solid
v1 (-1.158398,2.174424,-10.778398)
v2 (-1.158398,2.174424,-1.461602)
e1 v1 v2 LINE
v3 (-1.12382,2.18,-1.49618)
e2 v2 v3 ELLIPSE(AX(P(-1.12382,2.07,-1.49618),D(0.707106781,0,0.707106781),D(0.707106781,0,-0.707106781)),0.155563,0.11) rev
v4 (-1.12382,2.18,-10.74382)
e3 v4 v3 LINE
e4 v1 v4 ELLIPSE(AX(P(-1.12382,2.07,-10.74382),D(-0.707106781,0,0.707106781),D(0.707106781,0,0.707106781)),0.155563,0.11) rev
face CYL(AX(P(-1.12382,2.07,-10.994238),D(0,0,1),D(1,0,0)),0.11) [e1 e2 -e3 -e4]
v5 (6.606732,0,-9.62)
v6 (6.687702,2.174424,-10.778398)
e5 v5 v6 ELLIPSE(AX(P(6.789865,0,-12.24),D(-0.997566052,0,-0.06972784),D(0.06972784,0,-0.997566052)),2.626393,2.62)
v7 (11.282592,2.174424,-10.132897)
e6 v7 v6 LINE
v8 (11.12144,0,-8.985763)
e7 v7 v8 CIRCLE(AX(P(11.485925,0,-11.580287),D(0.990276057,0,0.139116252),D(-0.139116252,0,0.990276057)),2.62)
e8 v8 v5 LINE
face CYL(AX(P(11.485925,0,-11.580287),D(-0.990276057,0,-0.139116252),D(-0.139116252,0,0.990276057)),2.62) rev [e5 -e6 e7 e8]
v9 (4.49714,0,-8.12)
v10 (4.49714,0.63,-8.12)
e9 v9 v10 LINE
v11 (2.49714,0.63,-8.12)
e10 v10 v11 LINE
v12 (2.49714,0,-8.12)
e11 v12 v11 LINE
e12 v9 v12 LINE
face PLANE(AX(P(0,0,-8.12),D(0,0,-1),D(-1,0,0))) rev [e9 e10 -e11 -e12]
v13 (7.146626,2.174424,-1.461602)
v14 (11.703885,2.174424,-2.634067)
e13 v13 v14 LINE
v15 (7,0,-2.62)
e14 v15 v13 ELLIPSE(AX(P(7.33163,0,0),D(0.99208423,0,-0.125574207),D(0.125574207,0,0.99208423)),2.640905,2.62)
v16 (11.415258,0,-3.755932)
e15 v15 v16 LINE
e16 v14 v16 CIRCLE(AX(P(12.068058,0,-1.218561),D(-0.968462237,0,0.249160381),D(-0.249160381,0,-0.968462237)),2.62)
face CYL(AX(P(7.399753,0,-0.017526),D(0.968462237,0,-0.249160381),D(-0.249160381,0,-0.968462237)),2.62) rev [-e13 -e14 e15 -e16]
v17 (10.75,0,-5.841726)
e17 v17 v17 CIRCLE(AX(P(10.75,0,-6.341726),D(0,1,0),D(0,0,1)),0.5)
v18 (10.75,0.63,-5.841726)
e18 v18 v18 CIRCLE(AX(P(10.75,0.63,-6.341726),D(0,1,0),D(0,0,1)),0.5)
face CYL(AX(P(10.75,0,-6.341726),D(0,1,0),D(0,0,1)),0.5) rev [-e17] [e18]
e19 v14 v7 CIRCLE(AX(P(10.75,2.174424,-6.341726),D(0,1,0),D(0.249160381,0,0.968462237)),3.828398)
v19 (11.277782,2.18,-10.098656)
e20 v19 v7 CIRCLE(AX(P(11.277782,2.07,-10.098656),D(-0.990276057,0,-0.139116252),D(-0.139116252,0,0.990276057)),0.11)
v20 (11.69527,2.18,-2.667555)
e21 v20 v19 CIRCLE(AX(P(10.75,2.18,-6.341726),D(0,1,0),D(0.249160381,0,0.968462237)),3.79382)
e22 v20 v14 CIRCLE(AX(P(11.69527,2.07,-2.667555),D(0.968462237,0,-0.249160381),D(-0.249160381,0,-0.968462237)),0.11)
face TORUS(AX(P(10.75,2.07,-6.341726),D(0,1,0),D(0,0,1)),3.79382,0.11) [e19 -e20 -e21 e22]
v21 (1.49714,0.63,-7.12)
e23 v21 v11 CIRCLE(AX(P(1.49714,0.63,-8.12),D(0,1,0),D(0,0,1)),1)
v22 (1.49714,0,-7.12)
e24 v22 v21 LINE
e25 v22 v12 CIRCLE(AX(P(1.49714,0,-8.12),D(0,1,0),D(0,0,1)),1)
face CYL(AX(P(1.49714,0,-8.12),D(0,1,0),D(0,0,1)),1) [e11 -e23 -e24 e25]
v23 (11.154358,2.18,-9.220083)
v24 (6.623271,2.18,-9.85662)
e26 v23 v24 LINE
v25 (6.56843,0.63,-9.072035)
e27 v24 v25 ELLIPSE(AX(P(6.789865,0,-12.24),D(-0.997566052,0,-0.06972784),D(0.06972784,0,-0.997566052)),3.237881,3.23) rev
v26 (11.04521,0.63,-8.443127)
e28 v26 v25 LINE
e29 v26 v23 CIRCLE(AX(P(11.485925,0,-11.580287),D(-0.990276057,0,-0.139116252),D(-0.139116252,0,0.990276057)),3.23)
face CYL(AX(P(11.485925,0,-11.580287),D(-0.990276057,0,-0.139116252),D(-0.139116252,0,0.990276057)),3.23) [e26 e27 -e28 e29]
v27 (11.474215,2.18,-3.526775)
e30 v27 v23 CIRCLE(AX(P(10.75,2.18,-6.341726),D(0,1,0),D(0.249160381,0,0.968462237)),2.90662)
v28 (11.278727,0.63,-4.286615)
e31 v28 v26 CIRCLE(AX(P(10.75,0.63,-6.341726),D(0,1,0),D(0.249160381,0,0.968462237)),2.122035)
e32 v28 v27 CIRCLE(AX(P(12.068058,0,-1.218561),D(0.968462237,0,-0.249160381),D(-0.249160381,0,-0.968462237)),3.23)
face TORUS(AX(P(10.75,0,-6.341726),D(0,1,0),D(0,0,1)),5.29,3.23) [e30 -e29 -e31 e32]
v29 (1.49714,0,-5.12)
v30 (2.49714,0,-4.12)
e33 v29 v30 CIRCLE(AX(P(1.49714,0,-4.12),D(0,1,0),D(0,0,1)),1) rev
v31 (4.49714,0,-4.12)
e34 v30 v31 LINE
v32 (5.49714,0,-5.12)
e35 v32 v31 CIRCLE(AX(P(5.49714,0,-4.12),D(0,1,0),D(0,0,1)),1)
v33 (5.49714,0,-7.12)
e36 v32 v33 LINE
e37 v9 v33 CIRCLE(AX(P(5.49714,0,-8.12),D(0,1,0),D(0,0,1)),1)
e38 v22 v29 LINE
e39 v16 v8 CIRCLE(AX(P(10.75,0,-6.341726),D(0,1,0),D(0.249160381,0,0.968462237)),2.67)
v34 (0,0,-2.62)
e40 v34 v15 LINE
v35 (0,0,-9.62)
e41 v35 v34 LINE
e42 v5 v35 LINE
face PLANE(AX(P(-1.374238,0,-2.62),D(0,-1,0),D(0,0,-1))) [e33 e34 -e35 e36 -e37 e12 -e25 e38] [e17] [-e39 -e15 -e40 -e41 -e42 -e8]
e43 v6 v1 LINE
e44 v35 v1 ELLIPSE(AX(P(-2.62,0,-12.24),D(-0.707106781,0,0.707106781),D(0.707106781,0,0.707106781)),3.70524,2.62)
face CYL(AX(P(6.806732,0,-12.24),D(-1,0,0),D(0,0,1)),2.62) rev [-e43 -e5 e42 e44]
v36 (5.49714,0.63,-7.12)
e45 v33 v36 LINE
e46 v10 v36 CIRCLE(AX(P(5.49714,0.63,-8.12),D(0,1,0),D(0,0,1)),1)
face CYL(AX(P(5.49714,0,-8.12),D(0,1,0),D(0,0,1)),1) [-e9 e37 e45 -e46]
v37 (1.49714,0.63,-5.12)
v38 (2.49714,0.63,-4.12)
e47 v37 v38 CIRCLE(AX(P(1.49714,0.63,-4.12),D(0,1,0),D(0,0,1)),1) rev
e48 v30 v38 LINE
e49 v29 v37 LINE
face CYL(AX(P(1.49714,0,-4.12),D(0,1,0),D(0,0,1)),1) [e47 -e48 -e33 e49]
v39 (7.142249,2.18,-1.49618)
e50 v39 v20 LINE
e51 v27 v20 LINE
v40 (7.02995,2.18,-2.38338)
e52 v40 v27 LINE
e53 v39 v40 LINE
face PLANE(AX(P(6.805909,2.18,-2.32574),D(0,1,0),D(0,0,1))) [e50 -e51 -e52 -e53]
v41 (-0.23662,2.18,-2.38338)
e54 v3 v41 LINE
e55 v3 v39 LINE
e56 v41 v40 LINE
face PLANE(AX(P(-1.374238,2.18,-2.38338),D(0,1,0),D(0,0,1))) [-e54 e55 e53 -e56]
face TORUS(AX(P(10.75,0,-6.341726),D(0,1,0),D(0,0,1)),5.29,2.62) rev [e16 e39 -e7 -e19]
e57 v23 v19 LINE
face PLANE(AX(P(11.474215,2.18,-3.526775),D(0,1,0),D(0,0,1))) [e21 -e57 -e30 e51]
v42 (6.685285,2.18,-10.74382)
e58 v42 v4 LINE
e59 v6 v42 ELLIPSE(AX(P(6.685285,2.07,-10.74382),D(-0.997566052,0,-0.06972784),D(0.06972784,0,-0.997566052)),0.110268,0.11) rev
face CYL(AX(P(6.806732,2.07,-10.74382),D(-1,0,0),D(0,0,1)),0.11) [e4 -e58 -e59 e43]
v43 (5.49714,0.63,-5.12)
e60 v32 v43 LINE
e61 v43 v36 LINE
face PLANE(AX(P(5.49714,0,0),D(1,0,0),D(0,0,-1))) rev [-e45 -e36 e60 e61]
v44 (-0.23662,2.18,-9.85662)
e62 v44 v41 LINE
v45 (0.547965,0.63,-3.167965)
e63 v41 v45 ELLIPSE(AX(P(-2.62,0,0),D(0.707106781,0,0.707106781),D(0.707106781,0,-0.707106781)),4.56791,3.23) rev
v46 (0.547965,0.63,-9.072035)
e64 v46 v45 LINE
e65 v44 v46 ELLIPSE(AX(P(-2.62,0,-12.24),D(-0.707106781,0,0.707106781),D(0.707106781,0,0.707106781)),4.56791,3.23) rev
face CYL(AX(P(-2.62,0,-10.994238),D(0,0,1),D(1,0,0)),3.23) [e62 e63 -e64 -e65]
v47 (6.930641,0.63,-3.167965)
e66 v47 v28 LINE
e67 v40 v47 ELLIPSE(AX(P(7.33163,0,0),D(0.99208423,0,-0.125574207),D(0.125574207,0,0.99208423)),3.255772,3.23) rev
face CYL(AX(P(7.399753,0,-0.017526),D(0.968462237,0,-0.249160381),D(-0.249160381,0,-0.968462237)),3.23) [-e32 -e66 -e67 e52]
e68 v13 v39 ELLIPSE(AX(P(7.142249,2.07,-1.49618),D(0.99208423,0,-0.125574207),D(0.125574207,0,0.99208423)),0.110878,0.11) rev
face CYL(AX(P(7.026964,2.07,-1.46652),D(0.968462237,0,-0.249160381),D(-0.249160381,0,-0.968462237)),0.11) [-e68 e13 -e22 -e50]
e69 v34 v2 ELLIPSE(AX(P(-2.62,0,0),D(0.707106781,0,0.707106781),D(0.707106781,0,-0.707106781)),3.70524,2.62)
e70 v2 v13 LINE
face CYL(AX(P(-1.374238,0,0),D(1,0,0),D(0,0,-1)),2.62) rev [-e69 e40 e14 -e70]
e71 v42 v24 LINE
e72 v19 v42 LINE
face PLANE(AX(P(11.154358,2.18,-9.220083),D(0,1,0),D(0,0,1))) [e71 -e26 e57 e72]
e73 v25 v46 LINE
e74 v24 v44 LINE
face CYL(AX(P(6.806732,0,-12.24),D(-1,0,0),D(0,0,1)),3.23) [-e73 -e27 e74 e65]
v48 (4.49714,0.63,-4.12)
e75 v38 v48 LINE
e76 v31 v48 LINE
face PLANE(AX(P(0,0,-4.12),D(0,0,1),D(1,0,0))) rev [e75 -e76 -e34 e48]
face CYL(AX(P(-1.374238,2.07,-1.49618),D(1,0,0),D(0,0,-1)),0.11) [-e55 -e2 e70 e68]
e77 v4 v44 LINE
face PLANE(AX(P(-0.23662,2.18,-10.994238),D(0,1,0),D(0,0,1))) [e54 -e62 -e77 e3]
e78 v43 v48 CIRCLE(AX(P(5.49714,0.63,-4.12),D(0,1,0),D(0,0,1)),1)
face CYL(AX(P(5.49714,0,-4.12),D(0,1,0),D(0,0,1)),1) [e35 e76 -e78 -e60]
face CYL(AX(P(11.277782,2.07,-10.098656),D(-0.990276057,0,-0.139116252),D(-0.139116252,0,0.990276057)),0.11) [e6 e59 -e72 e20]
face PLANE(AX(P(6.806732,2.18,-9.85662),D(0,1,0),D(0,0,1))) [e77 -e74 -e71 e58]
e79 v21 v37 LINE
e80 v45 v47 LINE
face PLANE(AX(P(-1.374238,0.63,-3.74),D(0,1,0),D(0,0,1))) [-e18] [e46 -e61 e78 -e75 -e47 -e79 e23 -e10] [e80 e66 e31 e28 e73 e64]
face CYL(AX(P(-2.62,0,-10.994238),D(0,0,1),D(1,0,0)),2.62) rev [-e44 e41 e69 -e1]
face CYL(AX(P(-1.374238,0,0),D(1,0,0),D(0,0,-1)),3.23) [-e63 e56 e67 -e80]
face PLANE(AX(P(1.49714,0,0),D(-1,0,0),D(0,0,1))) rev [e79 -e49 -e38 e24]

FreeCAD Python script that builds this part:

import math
import FreeCAD as App
import Part
import Sketcher

V = App.Vector

doc = App.newDocument("Part")
body = doc.addObject("PartDesign::Body", "Body")

# Sketch on YZ plane
sketch1 = doc.addObject("Sketcher::SketchObject", "Sketch")
body.addObject(sketch1)
sketch1.AttachmentSupport = (doc.YZ_Plane, [""])
sketch1.MapMode = "FlatFace"
sketch1.addGeometry([
    Part.LineSegment(V(0, -2.62, 0), V(0, -3.74, 0)),  # 0
    Part.LineSegment(V(0, -3.74, 0), V(0.63, -3.74, 0)),  # 1
    Part.LineSegment(V(0.63, -3.74, 0), V(0.63, -3.168, 0)),  # 2
    Part.ArcOfCircle(Part.Circle(V(0, 0, 0), V(0, 0, 1), 3.23), math.radians(-79), math.radians(-48)),  # 3
    Part.LineSegment(V(2.18, -2.383, 0), V(2.18, -1.496, 0)),  # 4
    Part.ArcOfCircle(Part.Circle(V(2.07, -1.496, 0), V(0, 0, 1), 0.11), math.radians(0), math.radians(18.32)),  # 5
    Part.ArcOfCircle(Part.Circle(V(0, 0, 0), V(0, 0, 1), 2.62), math.radians(-90), math.radians(-34)),  # 6
], False)
sketch1.addConstraint([
    Sketcher.Constraint("Coincident", 0, 2, 1, 1),
    Sketcher.Constraint("Coincident", 1, 2, 2, 1),
    Sketcher.Constraint("Coincident", 2, 2, 3, 1),
    Sketcher.Constraint("Coincident", 3, 2, 4, 1),
    Sketcher.Constraint("Tangent", 4, 2, 5, 1),
    Sketcher.Constraint("Coincident", 5, 2, 6, 2),
    Sketcher.Constraint("Coincident", 6, 1, 0, 1),
    Sketcher.Constraint("Vertical", 0),
    Sketcher.Constraint("Horizontal", 1),
    Sketcher.Constraint("Vertical", 2),
    Sketcher.Constraint("Vertical", 4),
    Sketcher.Constraint("Coincident", 3, 3, -1, 1),
    Sketcher.Constraint("Coincident", 6, 3, -1, 1),
    Sketcher.Constraint("PointOnObject", 0, 2, -2),
    Sketcher.Constraint("Radius", 3, 3.23),
    Sketcher.Constraint("Radius", 5, 0.11),
    Sketcher.Constraint("Radius", 6, 2.62),
    Sketcher.Constraint("DistanceX", 1, 1, 1, 2, 0.63),
    Sketcher.Constraint("DistanceY", 0, 2, 0, 1, 1.12),
    Sketcher.Constraint("DistanceX", -1, 1, 5, 3, 2.07),
    Sketcher.Constraint("DistanceY", 4, 1, 4, 2, 0.8872),
])

# Sketch on XZ plane
sketch2 = doc.addObject("Sketcher::SketchObject", "Sketch001")
body.addObject(sketch2)
sketch2.AttachmentSupport = (doc.XZ_Plane, [""])
sketch2.MapMode = "FlatFace"
sketch2.addGeometry([
    Part.LineSegment(V(0, -2.6, 0), V(7, -2.6, 0)),  # 0
    Part.LineSegment(V(7, -2.6, 0), V(11.4, -3.8, 0)),  # 1
    Part.ArcOfCircle(Part.Circle(V(10.7, -6.3, 0), V(0, 0, 1), 2.7), math.radians(-82), math.radians(76)),  # 2
    Part.LineSegment(V(11.1, -9, 0), V(6.6, -9.6, 0)),  # 3
    Part.LineSegment(V(6.6, -9.6, 0), V(0, -9.6, 0)),  # 4
    Part.LineSegment(V(0, -9.6, 0), V(0, -2.6, 0)),  # 5
], False)
sketch2.addConstraint([
    Sketcher.Constraint("Coincident", 0, 2, 1, 1),
    Sketcher.Constraint("Tangent", 1, 2, 2, 2),
    Sketcher.Constraint("Tangent", 2, 1, 3, 1),
    Sketcher.Constraint("Coincident", 3, 2, 4, 1),
    Sketcher.Constraint("Coincident", 4, 2, 5, 1),
    Sketcher.Constraint("Coincident", 5, 2, 0, 1),
    Sketcher.Constraint("Horizontal", 0),
    Sketcher.Constraint("Horizontal", 4),
    Sketcher.Constraint("Vertical", 5),
    Sketcher.Constraint("PointOnObject", 4, 2, -2),
    Sketcher.Constraint("Equal", 0, 5),
    Sketcher.Constraint("Equal", 1, 3),
    Sketcher.Constraint("DistanceX", 0, 1, 0, 2, 7.0),
    Sketcher.Constraint("Radius", 2, 2.67),
    Sketcher.Constraint("DistanceX", -1, 1, 2, 3, 10.75),
    Sketcher.Constraint("DistanceY", 0, 2, -1, 1, 2.62),
    Sketcher.Constraint("Distance", 1, 4.55904),
])
doc.recompute()

additivepipe = doc.addObject("PartDesign::AdditivePipe", "AdditivePipe")
body.addObject(additivepipe)
additivepipe.Profile = sketch1
additivepipe.Spine = (sketch2, ["Edge1", "Edge2", "Edge3", "Edge4", "Edge5", "Edge6"])
additivepipe.Transition = "Right corner"

# Sketch on YZ plane
sketch3 = doc.addObject("Sketcher::SketchObject", "Sketch002")
body.addObject(sketch3)
sketch3.AttachmentSupport = (doc.YZ_Plane, [""])
sketch3.MapMode = "FlatFace"
sketch3.AttachmentOffset = App.Placement(V(0, 0, 1.12), App.Rotation())
sketch3.addGeometry([
    Part.LineSegment(V(0.6, -3.7, 0), V(0, -3.7, 0)),
    Part.LineSegment(V(0, -3.7, 0), V(0, -8.5, 0)),
    Part.LineSegment(V(0, -8.5, 0), V(0.6, -8.5, 0)),
    Part.LineSegment(V(0.6, -8.5, 0), V(0.6, -3.7, 0)),
], False)
sketch3.addConstraint([
    Sketcher.Constraint("Coincident", 0, 2, 1, 1),
    Sketcher.Constraint("Coincident", 1, 2, 2, 1),
    Sketcher.Constraint("Coincident", 2, 2, 3, 1),
    Sketcher.Constraint("Coincident", 3, 2, 0, 1),
    Sketcher.Constraint("Horizontal", 0),
    Sketcher.Constraint("Vertical", 1),
    Sketcher.Constraint("Horizontal", 2),
    Sketcher.Constraint("Vertical", 3),
    Sketcher.Constraint("PointOnObject", 0, 2, -2),
    Sketcher.Constraint("DistanceX", 0, 2, 0, 1, 0.63),
    Sketcher.Constraint("DistanceY", 1, 2, 1, 1, 4.76),
    Sketcher.Constraint("DistanceY", 1, 2, -1, 1, 8.5),
])
pad1 = doc.addObject("PartDesign::Pad", "Pad")
body.addObject(pad1)
pad1.Profile = sketch3
pad1.Type = "UpToFirst"

# Sketch on XZ plane
sketch4 = doc.addObject("Sketcher::SketchObject", "Sketch003")
body.addObject(sketch4)
sketch4.AttachmentSupport = (doc.XZ_Plane, [""])
sketch4.MapMode = "FlatFace"
sketch4.AttachmentOffset = App.Placement(V(0, 0, -0.63), App.Rotation())
sketch4.addGeometry([
    Part.Circle(V(10.8, -6.3, 0), V(0, 0, 1), 0.5),  # 0
    Part.LineSegment(V(1.5, -7.1, 0), V(1.5, -5.1, 0)),  # 1
    Part.ArcOfCircle(Part.Circle(V(1.5, -4.1, 0), V(0, 0, 1), 1), math.radians(-90), math.radians(0)),  # 2
    Part.LineSegment(V(2.5, -4.1, 0), V(4.5, -4.1, 0)),  # 3
    Part.ArcOfCircle(Part.Circle(V(5.5, -4.1, 0), V(0, 0, 1), 1), math.radians(180), math.radians(270)),  # 4
    Part.LineSegment(V(5.5, -5.1, 0), V(5.5, -7.1, 0)),  # 5
    Part.ArcOfCircle(Part.Circle(V(5.5, -8.1, 0), V(0, 0, 1), 1), math.radians(90), math.radians(180)),  # 6
    Part.LineSegment(V(4.5, -8.1, 0), V(2.5, -8.1, 0)),  # 7
    Part.ArcOfCircle(Part.Circle(V(1.5, -8.1, 0), V(0, 0, 1), 1), math.radians(0), math.radians(90)),  # 8
], False)
sketch4.addConstraint([
    Sketcher.Constraint("Coincident", 1, 2, 2, 1),
    Sketcher.Constraint("Coincident", 2, 2, 3, 1),
    Sketcher.Constraint("Coincident", 3, 2, 4, 1),
    Sketcher.Constraint("Coincident", 4, 2, 5, 1),
    Sketcher.Constraint("Coincident", 5, 2, 6, 1),
    Sketcher.Constraint("Coincident", 6, 2, 7, 1),
    Sketcher.Constraint("Coincident", 7, 2, 8, 1),
    Sketcher.Constraint("Coincident", 8, 2, 1, 1),
    Sketcher.Constraint("Vertical", 1),
    Sketcher.Constraint("Horizontal", 3),
    Sketcher.Constraint("Vertical", 5),
    Sketcher.Constraint("Horizontal", 7),
    Sketcher.Constraint("Equal", 2, 4),
    Sketcher.Constraint("Equal", 4, 6),
    Sketcher.Constraint("Equal", 6, 8),
    Sketcher.Constraint("Horizontal", 2, 3, 4, 3),
    Sketcher.Constraint("Horizontal", 6, 3, 8, 3),
    Sketcher.Constraint("Horizontal", 4, 3, 2, 2),
    Sketcher.Constraint("Horizontal", 8, 3, 6, 2),
    Sketcher.Constraint("Vertical", 4, 3, 6, 3),
    Sketcher.Constraint("Vertical", 2, 3, 8, 3),
    Sketcher.Constraint("Vertical", 8, 3, 1, 2),
    Sketcher.Constraint("Vertical", 6, 3, 4, 2),
    Sketcher.Constraint("Equal", 7, 1),
    Sketcher.Constraint("Diameter", 0, 1.0),
    Sketcher.Constraint("Radius", 2, 1.0),
    Sketcher.Constraint("DistanceX", 3, 1, 3, 2, 2.0),
    Sketcher.Constraint("DistanceX", -1, 1, 0, 3, 10.75),
    Sketcher.Constraint("DistanceY", 2, 3, -1, 1, 4.12),
    Sketcher.Constraint("DistanceX", -1, 1, 2, 3, 1.49714),
    Sketcher.Constraint("DistanceY", 0, 3, -1, 1, 6.341726),
])
pocket1 = doc.addObject("PartDesign::Pocket", "Pocket")
body.addObject(pocket1)
pocket1.Profile = sketch4
pocket1.Type = "ThroughAll"
pocket1.Midplane = True

doc.recompute()
